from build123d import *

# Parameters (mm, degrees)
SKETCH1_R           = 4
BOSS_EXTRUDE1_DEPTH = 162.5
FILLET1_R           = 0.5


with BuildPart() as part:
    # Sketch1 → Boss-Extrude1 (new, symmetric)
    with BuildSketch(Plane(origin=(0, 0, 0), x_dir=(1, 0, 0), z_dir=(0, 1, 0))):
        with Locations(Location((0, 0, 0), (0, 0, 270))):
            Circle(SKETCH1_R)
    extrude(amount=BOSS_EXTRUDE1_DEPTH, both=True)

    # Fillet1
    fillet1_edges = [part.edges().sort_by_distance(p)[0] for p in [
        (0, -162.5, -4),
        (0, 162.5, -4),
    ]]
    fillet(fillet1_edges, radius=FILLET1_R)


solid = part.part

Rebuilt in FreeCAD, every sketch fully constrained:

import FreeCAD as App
import Part
import Sketcher
from FreeCAD import Vector


def edges_at(feature, points):
    """Names of the edges that pass closest to the given points."""
    edges = feature.Shape.Edges
    near = lambda p: min(range(len(edges)), key=lambda i: edges[i].distToShape(Part.Vertex(*p))[0])
    return sorted({f"Edge{near(p) + 1}" for p in points})

doc = App.newDocument("Part")
params = doc.addObject("Spreadsheet::Sheet", "Params")
for row, (alias, value) in enumerate([
    ("sketch1_diameter", "8 mm"),
    ("pad1_length", "325 mm"),
    ("fillet_radius", "0.5 mm"),
], start=1):
    params.set(f"A{row}", alias)
    params.set(f"B{row}", "=" + value)
    params.setAlias(f"B{row}", alias)

body = doc.addObject("PartDesign::Body", "Body")

# Sketch on XZ plane
sketch1 = doc.addObject("Sketcher::SketchObject", "Sketch")
body.addObject(sketch1)
sketch1.AttachmentSupport = (doc.XZ_Plane, [""])
sketch1.MapMode = "FlatFace"
sketch1.addGeometry(Part.Circle(Vector(0, 0, 0), Vector(0, 0, 1), 4), False)
sketch1.addConstraint([
    Sketcher.Constraint("Coincident", 0, 3, -1, 1),
    Sketcher.Constraint("Diameter", 0, 8.0),
])
sketch1.setExpression("Constraints[1]", "Params.sketch1_diameter")
pad1 = doc.addObject("PartDesign::Pad", "Pad")
body.addObject(pad1)
pad1.Profile = sketch1
pad1.setExpression("Length", "Params.pad1_length")
pad1.Midplane = True
doc.recompute()

fillet = doc.addObject("PartDesign::Fillet", "Fillet")
body.addObject(fillet)
fillet.Base = (pad1, edges_at(pad1, [(0, -162.5, -4), (0, 162.5, -4)]))
fillet.setExpression("Radius", "Params.fillet_radius")

doc.recompute()
